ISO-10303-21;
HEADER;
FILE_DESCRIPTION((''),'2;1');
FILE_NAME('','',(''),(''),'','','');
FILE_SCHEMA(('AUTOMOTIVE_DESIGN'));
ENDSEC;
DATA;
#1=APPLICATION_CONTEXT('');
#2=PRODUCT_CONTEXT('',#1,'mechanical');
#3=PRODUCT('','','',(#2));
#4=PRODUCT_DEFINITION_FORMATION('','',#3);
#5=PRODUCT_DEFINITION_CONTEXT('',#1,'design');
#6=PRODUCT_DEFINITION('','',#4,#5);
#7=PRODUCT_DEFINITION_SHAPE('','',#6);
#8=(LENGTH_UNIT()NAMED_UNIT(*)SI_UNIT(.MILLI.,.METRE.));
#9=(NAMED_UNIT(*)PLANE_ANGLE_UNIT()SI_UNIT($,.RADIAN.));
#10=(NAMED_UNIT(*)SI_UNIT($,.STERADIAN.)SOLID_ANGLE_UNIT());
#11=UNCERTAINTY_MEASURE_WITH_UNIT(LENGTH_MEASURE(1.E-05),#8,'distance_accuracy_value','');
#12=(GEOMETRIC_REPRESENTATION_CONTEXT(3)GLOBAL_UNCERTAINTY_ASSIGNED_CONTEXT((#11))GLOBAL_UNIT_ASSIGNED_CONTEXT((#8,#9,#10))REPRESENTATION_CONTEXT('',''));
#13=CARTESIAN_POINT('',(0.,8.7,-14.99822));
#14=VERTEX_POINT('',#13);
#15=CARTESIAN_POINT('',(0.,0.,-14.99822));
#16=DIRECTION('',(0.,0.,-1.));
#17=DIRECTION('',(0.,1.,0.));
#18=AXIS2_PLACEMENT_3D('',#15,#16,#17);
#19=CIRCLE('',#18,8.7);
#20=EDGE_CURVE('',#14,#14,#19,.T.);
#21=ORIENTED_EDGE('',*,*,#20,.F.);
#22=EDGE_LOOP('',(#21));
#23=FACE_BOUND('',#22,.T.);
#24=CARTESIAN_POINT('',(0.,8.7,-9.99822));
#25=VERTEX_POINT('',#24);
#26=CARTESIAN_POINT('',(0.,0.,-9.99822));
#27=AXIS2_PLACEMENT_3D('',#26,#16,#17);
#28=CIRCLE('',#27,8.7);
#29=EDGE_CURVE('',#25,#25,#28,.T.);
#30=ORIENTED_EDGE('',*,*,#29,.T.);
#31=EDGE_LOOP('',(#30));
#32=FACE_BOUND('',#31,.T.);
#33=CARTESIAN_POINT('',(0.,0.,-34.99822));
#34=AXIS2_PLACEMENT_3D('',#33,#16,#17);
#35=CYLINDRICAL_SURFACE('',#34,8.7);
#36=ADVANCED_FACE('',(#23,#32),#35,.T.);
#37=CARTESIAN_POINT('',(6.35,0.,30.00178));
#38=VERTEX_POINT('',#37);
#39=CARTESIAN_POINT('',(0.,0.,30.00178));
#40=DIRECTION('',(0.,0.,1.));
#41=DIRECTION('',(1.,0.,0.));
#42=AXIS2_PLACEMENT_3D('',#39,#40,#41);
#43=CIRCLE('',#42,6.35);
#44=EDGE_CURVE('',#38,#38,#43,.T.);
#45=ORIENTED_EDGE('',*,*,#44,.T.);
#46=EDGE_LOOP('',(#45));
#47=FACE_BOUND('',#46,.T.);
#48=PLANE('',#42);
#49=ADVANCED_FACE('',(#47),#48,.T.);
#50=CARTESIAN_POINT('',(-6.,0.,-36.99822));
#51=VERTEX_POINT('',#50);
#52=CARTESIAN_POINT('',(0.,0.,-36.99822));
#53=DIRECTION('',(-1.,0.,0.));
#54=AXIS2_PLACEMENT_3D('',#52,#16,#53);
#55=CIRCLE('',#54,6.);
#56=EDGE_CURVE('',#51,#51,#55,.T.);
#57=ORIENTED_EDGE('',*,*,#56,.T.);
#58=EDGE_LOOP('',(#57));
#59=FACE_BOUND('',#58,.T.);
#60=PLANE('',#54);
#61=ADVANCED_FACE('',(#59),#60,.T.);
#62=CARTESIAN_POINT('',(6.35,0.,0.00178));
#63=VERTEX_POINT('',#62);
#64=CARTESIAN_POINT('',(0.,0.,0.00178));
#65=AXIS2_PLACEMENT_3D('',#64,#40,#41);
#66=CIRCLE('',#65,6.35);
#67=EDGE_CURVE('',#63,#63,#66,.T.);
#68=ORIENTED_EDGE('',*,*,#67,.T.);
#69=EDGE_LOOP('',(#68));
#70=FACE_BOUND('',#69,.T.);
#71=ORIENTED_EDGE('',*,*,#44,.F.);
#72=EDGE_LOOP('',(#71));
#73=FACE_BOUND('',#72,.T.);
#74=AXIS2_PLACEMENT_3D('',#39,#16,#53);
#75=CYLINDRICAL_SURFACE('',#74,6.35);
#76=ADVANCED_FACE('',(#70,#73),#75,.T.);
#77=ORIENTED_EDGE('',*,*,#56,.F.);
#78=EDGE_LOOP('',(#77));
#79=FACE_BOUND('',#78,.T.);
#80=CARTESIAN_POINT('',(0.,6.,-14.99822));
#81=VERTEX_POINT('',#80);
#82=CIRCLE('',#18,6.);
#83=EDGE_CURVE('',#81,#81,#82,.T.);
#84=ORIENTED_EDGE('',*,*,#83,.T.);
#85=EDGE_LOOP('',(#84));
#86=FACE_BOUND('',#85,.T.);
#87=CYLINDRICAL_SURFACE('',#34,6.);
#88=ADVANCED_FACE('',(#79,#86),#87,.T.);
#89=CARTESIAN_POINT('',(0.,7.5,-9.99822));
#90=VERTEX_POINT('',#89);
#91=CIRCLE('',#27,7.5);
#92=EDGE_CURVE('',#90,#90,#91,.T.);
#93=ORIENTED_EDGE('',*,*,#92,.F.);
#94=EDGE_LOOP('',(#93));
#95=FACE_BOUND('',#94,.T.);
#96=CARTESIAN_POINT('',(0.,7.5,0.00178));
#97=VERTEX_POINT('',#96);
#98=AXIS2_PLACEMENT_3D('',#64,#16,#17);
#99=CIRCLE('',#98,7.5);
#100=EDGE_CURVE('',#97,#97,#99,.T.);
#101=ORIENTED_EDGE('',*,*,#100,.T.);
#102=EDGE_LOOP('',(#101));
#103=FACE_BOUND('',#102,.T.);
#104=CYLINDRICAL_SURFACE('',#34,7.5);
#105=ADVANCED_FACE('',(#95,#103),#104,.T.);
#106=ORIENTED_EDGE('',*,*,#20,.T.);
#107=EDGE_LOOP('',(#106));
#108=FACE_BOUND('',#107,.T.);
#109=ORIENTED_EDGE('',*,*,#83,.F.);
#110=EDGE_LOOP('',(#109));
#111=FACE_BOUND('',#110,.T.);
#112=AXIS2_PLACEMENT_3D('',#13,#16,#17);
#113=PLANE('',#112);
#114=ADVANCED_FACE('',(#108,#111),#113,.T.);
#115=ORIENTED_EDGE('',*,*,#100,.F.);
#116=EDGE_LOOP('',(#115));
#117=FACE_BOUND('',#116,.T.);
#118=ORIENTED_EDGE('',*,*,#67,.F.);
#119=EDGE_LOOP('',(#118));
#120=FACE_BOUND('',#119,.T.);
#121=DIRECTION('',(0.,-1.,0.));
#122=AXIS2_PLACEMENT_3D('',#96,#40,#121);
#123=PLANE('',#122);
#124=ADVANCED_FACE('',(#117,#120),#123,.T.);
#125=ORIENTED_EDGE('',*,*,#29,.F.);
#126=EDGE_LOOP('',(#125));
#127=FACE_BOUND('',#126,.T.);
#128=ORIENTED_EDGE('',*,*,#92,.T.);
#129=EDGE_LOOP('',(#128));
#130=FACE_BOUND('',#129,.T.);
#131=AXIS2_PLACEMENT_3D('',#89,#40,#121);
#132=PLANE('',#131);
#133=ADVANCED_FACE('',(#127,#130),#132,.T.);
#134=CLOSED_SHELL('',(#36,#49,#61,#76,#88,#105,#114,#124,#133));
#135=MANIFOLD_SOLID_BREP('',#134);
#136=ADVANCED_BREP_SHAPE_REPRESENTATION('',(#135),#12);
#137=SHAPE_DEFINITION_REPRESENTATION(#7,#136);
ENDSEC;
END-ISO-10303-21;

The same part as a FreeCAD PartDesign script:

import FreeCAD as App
import Part
import Sketcher

V = App.Vector

doc = App.newDocument("Part")
params = doc.addObject("Spreadsheet::Sheet", "Params")
for row, (alias, value) in enumerate([
    ("sketch1_width", "6 mm"),
    ("sketch1_height", "5 mm"),
    ("sketch1_height2", "10 mm"),
    ("sketch1_height3", "35 mm"),
    ("sketch1_width2", "1.2 mm"),
    ("revolution_angle", "360 deg"),
    ("sketch2_diameter", "12.7 mm"),
    ("pad1_length", "30 mm"),
    ("sketch3_diameter", "12 mm"),
    ("pad2_length", "2 mm"),
], start=1):
    params.set(f"A{row}", alias)
    params.set(f"B{row}", "=" + value)
    params.setAlias(f"B{row}", alias)

body = doc.addObject("PartDesign::Body", "Body")

# Sketch on YZ plane
sketch1 = doc.addObject("Sketcher::SketchObject", "Sketch")
body.addObject(sketch1)
sketch1.AttachmentSupport = (doc.YZ_Plane, [""])
sketch1.MapMode = "FlatFace"
sketch1.addGeometry([
    Part.LineSegment(V(8.7, -15, 0), V(8.7, -10, 0)),  # 0
    Part.LineSegment(V(8.7, -10, 0), V(7.5, -10, 0)),  # 1
    Part.LineSegment(V(7.5, -10, 0), V(7.5, 0, 0)),  # 2
    Part.LineSegment(V(7.5, 0, 0), V(0, 0, 0)),  # 3
    Part.LineSegment(V(0, 0, 0), V(0, -35, 0)),  # 4
    Part.LineSegment(V(0, -35, 0), V(6, -35, 0)),  # 5
    Part.LineSegment(V(6, -35, 0), V(6, -15, 0)),  # 6
    Part.LineSegment(V(6, -15, 0), V(8.7, -15, 0)),  # 7
], False)
sketch1.addConstraint([
    Sketcher.Constraint("Coincident", 0, 2, 1, 1),
    Sketcher.Constraint("Coincident", 1, 2, 2, 1),
    Sketcher.Constraint("Coincident", 2, 2, 3, 1),
    Sketcher.Constraint("Coincident", 3, 2, 4, 1),
    Sketcher.Constraint("Coincident", 4, 2, 5, 1),
    Sketcher.Constraint("Coincident", 5, 2, 6, 1),
    Sketcher.Constraint("Coincident", 6, 2, 7, 1),
    Sketcher.Constraint("Coincident", 7, 2, 0, 1),
    Sketcher.Constraint("Vertical", 0),
    Sketcher.Constraint("Horizontal", 1),
    Sketcher.Constraint("Vertical", 2),
    Sketcher.Constraint("Horizontal", 3),
    Sketcher.Constraint("Vertical", 4),
    Sketcher.Constraint("Horizontal", 5),
    Sketcher.Constraint("Vertical", 6),
    Sketcher.Constraint("Horizontal", 7),
    Sketcher.Constraint("PointOnObject", 3, 2, -2),
    Sketcher.Constraint("DistanceX", 5, 1, 5, 2, 6.0),
    Sketcher.Constraint("DistanceY", 0, 1, 0, 2, 5.0),
    Sketcher.Constraint("DistanceY", 2, 1, 2, 2, 10.0),
    Sketcher.Constraint("DistanceY", 4, 2, 4, 1, 35.0),
    Sketcher.Constraint("DistanceX", 1, 2, 1, 1, 1.2),
    Sketcher.Constraint("DistanceX", 3, 2, 3, 1, 7.5),
    Sketcher.Constraint("DistanceY", 0, 2, -1, 1, 9.99822),
])
sketch1.setExpression("Constraints[17]", "Params.sketch1_width")
sketch1.setExpression("Constraints[18]", "Params.sketch1_height")
sketch1.setExpression("Constraints[19]", "Params.sketch1_height2")
sketch1.setExpression("Constraints[20]", "Params.sketch1_height3")
sketch1.setExpression("Constraints[21]", "Params.sketch1_width2")
revolution = doc.addObject("PartDesign::Revolution", "Revolution")
body.addObject(revolution)
revolution.Profile = sketch1
revolution.ReferenceAxis = (sketch1, ["V_Axis"])
revolution.setExpression("Angle", "Params.revolution_angle")

# Sketch on XY plane
sketch2 = doc.addObject("Sketcher::SketchObject", "Sketch001")
body.addObject(sketch2)
sketch2.AttachmentSupport = (doc.XY_Plane, [""])
sketch2.MapMode = "FlatFace"
sketch2.AttachmentOffset = App.Placement(V(0, 0, 0.00178), App.Rotation())
sketch2.addGeometry(Part.Circle(V(0, 0, 0), V(0, 0, 1), 6), False)
sketch2.addConstraint([
    Sketcher.Constraint("Coincident", 0, 3, -1, 1),
    Sketcher.Constraint("Diameter", 0, 12.7),
])
sketch2.setExpression("Constraints[1]", "Params.sketch2_diameter")
pad1 = doc.addObject("PartDesign::Pad", "Pad")
body.addObject(pad1)
pad1.Profile = sketch2
pad1.setExpression("Length", "Params.pad1_length")

# Sketch on XY plane
sketch3 = doc.addObject("Sketcher::SketchObject", "Sketch002")
body.addObject(sketch3)
sketch3.AttachmentSupport = (doc.XY_Plane, [""])
sketch3.MapMode = "FlatFace"
sketch3.AttachmentOffset = App.Placement(V(0, 0, -36.99822), App.Rotation())
sketch3.addGeometry(Part.Circle(V(0, 0, 0), V(0, 0, 1), 6), False)
sketch3.addConstraint([
    Sketcher.Constraint("Coincident", 0, 3, -1, 1),
    Sketcher.Constraint("Diameter", 0, 12.0),
])
sketch3.setExpression("Constraints[1]", "Params.sketch3_diameter")
pad2 = doc.addObject("PartDesign::Pad", "Pad001")
body.addObject(pad2)
pad2.Profile = sketch3
pad2.setExpression("Length", "Params.pad2_length")

doc.recompute()
